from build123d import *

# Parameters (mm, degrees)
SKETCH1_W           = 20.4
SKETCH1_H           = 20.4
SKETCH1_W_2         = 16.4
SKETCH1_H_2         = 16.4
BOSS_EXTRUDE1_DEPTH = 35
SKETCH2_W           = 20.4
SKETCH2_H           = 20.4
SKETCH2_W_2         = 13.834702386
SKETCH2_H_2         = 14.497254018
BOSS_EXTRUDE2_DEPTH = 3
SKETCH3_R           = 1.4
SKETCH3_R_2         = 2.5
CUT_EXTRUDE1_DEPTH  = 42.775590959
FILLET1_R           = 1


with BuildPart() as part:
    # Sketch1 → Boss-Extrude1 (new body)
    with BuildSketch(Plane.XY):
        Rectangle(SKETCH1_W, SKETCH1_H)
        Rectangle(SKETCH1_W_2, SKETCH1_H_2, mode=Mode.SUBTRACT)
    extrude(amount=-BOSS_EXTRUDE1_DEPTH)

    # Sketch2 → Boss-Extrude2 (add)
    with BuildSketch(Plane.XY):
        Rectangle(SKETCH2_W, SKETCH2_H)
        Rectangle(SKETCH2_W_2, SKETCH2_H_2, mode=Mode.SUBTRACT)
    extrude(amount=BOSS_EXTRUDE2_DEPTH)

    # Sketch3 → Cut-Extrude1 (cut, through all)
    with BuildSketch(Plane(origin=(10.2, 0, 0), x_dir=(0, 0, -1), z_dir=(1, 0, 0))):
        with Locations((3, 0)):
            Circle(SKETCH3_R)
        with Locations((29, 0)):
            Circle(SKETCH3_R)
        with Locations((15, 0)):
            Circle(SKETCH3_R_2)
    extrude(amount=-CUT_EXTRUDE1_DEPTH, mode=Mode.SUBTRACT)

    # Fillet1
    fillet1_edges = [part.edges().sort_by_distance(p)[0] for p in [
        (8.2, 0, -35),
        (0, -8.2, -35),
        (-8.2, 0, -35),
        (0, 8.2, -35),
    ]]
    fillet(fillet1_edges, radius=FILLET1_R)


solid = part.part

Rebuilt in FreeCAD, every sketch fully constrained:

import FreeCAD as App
import Part
import Sketcher


def edges_at(feature, points):
    """Names of the edges that pass closest to the given points."""
    edges = feature.Shape.Edges
    near = lambda p: min(range(len(edges)), key=lambda i: edges[i].distToShape(Part.Vertex(*p))[0])
    return sorted({f"Edge{near(p) + 1}" for p in points})


def add_polygon(sketch, points):
    """Adds a closed chain of lines whose ends are joined by coincident constraints."""
    first, n = sketch.GeometryCount, len(points)
    for a, b in zip(points, points[1:] + points[:1]):
        sketch.addGeometry(Part.LineSegment(App.Vector(*a, 0), App.Vector(*b, 0)), False)
    for i in range(n):
        sketch.addConstraint(Sketcher.Constraint("Coincident", first + i, 2, first + (i + 1) % n, 1))

doc = App.newDocument("Part")
body = doc.addObject("PartDesign::Body", "Body")

# Sketch on XY plane
sketch1 = doc.addObject("Sketcher::SketchObject", "Sketch")
body.addObject(sketch1)
sketch1.AttachmentSupport = (doc.XY_Plane, [""])
sketch1.MapMode = "FlatFace"
add_polygon(sketch1, [(-10, 10), (-10, -10), (10, -10), (10, 10)])  # lines 0-3
add_polygon(sketch1, [(8, -8), (-8, -8), (-8, 8), (8, 8)])  # lines 4-7
sketch1.addConstraint(Sketcher.Constraint("Vertical", 0))
sketch1.addConstraint(Sketcher.Constraint("Horizontal", 1))
sketch1.addConstraint(Sketcher.Constraint("Vertical", 2))
sketch1.addConstraint(Sketcher.Constraint("Horizontal", 3))
sketch1.addConstraint(Sketcher.Constraint("Horizontal", 4))
sketch1.addConstraint(Sketcher.Constraint("Vertical", 5))
sketch1.addConstraint(Sketcher.Constraint("Horizontal", 6))
sketch1.addConstraint(Sketcher.Constraint("Vertical", 7))
sketch1.addConstraint(Sketcher.Constraint("Symmetric", 0, 2, 2, 2, -1, 1))
sketch1.addConstraint(Sketcher.Constraint("Symmetric", 4, 2, 6, 2, -1, 1))
sketch1.addConstraint(Sketcher.Constraint("Equal", 3, 0))
sketch1.addConstraint(Sketcher.Constraint("Equal", 6, 5))
sketch1.addConstraint(Sketcher.Constraint("DistanceX", 1, 1, 1, 2, 20.4))
sketch1.addConstraint(Sketcher.Constraint("DistanceX", 4, 2, 4, 1, 16.4))
pad1 = doc.addObject("PartDesign::Pad", "Pad")
body.addObject(pad1)
pad1.Profile = sketch1
pad1.Length = 35
pad1.Reversed = True

# Sketch on XY plane
sketch2 = doc.addObject("Sketcher::SketchObject", "Sketch001")
body.addObject(sketch2)
sketch2.AttachmentSupport = (doc.XY_Plane, [""])
sketch2.MapMode = "FlatFace"
add_polygon(sketch2, [(-10, 10), (-10, -10), (10, -10), (10, 10)])  # lines 0-3
add_polygon(sketch2, [(7, -7), (-7, -7), (-7, 7), (7, 7)])  # lines 4-7
sketch2.addConstraint(Sketcher.Constraint("Vertical", 0))
sketch2.addConstraint(Sketcher.Constraint("Horizontal", 1))
sketch2.addConstraint(Sketcher.Constraint("Vertical", 2))
sketch2.addConstraint(Sketcher.Constraint("Horizontal", 3))
sketch2.addConstraint(Sketcher.Constraint("Horizontal", 4))
sketch2.addConstraint(Sketcher.Constraint("Vertical", 5))
sketch2.addConstraint(Sketcher.Constraint("Horizontal", 6))
sketch2.addConstraint(Sketcher.Constraint("Vertical", 7))
sketch2.addConstraint(Sketcher.Constraint("Symmetric", 0, 2, 2, 2, -1, 1))
sketch2.addConstraint(Sketcher.Constraint("Symmetric", 4, 2, 6, 2, -1, 1))
sketch2.addConstraint(Sketcher.Constraint("Equal", 3, 0))
sketch2.addConstraint(Sketcher.Constraint("DistanceX", 1, 1, 1, 2, 20.4))
sketch2.addConstraint(Sketcher.Constraint("DistanceX", 4, 2, 4, 1, 13.834702))
sketch2.addConstraint(Sketcher.Constraint("DistanceY", 5, 1, 5, 2, 14.497254))
pad2 = doc.addObject("PartDesign::Pad", "Pad001")
body.addObject(pad2)
pad2.Profile = sketch2
pad2.Length = 3

# Sketch on YZ plane
sketch3 = doc.addObject("Sketcher::SketchObject", "Sketch002")
body.addObject(sketch3)
sketch3.AttachmentSupport = (doc.YZ_Plane, [""])
sketch3.MapMode = "FlatFace"
sketch3.AttachmentOffset = App.Placement(App.Vector(0, 0, 10.2), App.Rotation())
sketch3.addGeometry(Part.Circle(App.Vector(0, -3, 0), App.Vector(0, 0, 1), 1.4), False)
sketch3.addGeometry(Part.Circle(App.Vector(0, -29, 0), App.Vector(0, 0, 1), 1.4), False)
sketch3.addGeometry(Part.Circle(App.Vector(0, -15, 0), App.Vector(0, 0, 1), 2.5), False)
sketch3.addConstraint(Sketcher.Constraint("Equal", 0, 1))
sketch3.addConstraint(Sketcher.Constraint("PointOnObject", 0, 3, -2))
sketch3.addConstraint(Sketcher.Constraint("PointOnObject", 1, 3, -2))
sketch3.addConstraint(Sketcher.Constraint("PointOnObject", 2, 3, -2))
sketch3.addConstraint(Sketcher.Constraint("Diameter", 2, 5.0))
sketch3.addConstraint(Sketcher.Constraint("Diameter", 0, 2.8))
sketch3.addConstraint(Sketcher.Constraint("DistanceY", 0, 3, -1, 1, 3.0))
sketch3.addConstraint(Sketcher.Constraint("DistanceY", 1, 3, -1, 1, 29.0))
sketch3.addConstraint(Sketcher.Constraint("DistanceY", 2, 3, -1, 1, 15.0))
pocket1 = doc.addObject("PartDesign::Pocket", "Pocket")
body.addObject(pocket1)
pocket1.Profile = sketch3
pocket1.Type = "ThroughAll"
doc.recompute()

fillet = doc.addObject("PartDesign::Fillet", "Fillet")
body.addObject(fillet)
fillet.Base = (pocket1, edges_at(pocket1, [
    (8.2, 0, -35),
    (0, -8.2, -35),
    (-8.2, 0, -35),
    (0, 8.2, -35),
]))
fillet.Radius = 1

doc.recompute()
